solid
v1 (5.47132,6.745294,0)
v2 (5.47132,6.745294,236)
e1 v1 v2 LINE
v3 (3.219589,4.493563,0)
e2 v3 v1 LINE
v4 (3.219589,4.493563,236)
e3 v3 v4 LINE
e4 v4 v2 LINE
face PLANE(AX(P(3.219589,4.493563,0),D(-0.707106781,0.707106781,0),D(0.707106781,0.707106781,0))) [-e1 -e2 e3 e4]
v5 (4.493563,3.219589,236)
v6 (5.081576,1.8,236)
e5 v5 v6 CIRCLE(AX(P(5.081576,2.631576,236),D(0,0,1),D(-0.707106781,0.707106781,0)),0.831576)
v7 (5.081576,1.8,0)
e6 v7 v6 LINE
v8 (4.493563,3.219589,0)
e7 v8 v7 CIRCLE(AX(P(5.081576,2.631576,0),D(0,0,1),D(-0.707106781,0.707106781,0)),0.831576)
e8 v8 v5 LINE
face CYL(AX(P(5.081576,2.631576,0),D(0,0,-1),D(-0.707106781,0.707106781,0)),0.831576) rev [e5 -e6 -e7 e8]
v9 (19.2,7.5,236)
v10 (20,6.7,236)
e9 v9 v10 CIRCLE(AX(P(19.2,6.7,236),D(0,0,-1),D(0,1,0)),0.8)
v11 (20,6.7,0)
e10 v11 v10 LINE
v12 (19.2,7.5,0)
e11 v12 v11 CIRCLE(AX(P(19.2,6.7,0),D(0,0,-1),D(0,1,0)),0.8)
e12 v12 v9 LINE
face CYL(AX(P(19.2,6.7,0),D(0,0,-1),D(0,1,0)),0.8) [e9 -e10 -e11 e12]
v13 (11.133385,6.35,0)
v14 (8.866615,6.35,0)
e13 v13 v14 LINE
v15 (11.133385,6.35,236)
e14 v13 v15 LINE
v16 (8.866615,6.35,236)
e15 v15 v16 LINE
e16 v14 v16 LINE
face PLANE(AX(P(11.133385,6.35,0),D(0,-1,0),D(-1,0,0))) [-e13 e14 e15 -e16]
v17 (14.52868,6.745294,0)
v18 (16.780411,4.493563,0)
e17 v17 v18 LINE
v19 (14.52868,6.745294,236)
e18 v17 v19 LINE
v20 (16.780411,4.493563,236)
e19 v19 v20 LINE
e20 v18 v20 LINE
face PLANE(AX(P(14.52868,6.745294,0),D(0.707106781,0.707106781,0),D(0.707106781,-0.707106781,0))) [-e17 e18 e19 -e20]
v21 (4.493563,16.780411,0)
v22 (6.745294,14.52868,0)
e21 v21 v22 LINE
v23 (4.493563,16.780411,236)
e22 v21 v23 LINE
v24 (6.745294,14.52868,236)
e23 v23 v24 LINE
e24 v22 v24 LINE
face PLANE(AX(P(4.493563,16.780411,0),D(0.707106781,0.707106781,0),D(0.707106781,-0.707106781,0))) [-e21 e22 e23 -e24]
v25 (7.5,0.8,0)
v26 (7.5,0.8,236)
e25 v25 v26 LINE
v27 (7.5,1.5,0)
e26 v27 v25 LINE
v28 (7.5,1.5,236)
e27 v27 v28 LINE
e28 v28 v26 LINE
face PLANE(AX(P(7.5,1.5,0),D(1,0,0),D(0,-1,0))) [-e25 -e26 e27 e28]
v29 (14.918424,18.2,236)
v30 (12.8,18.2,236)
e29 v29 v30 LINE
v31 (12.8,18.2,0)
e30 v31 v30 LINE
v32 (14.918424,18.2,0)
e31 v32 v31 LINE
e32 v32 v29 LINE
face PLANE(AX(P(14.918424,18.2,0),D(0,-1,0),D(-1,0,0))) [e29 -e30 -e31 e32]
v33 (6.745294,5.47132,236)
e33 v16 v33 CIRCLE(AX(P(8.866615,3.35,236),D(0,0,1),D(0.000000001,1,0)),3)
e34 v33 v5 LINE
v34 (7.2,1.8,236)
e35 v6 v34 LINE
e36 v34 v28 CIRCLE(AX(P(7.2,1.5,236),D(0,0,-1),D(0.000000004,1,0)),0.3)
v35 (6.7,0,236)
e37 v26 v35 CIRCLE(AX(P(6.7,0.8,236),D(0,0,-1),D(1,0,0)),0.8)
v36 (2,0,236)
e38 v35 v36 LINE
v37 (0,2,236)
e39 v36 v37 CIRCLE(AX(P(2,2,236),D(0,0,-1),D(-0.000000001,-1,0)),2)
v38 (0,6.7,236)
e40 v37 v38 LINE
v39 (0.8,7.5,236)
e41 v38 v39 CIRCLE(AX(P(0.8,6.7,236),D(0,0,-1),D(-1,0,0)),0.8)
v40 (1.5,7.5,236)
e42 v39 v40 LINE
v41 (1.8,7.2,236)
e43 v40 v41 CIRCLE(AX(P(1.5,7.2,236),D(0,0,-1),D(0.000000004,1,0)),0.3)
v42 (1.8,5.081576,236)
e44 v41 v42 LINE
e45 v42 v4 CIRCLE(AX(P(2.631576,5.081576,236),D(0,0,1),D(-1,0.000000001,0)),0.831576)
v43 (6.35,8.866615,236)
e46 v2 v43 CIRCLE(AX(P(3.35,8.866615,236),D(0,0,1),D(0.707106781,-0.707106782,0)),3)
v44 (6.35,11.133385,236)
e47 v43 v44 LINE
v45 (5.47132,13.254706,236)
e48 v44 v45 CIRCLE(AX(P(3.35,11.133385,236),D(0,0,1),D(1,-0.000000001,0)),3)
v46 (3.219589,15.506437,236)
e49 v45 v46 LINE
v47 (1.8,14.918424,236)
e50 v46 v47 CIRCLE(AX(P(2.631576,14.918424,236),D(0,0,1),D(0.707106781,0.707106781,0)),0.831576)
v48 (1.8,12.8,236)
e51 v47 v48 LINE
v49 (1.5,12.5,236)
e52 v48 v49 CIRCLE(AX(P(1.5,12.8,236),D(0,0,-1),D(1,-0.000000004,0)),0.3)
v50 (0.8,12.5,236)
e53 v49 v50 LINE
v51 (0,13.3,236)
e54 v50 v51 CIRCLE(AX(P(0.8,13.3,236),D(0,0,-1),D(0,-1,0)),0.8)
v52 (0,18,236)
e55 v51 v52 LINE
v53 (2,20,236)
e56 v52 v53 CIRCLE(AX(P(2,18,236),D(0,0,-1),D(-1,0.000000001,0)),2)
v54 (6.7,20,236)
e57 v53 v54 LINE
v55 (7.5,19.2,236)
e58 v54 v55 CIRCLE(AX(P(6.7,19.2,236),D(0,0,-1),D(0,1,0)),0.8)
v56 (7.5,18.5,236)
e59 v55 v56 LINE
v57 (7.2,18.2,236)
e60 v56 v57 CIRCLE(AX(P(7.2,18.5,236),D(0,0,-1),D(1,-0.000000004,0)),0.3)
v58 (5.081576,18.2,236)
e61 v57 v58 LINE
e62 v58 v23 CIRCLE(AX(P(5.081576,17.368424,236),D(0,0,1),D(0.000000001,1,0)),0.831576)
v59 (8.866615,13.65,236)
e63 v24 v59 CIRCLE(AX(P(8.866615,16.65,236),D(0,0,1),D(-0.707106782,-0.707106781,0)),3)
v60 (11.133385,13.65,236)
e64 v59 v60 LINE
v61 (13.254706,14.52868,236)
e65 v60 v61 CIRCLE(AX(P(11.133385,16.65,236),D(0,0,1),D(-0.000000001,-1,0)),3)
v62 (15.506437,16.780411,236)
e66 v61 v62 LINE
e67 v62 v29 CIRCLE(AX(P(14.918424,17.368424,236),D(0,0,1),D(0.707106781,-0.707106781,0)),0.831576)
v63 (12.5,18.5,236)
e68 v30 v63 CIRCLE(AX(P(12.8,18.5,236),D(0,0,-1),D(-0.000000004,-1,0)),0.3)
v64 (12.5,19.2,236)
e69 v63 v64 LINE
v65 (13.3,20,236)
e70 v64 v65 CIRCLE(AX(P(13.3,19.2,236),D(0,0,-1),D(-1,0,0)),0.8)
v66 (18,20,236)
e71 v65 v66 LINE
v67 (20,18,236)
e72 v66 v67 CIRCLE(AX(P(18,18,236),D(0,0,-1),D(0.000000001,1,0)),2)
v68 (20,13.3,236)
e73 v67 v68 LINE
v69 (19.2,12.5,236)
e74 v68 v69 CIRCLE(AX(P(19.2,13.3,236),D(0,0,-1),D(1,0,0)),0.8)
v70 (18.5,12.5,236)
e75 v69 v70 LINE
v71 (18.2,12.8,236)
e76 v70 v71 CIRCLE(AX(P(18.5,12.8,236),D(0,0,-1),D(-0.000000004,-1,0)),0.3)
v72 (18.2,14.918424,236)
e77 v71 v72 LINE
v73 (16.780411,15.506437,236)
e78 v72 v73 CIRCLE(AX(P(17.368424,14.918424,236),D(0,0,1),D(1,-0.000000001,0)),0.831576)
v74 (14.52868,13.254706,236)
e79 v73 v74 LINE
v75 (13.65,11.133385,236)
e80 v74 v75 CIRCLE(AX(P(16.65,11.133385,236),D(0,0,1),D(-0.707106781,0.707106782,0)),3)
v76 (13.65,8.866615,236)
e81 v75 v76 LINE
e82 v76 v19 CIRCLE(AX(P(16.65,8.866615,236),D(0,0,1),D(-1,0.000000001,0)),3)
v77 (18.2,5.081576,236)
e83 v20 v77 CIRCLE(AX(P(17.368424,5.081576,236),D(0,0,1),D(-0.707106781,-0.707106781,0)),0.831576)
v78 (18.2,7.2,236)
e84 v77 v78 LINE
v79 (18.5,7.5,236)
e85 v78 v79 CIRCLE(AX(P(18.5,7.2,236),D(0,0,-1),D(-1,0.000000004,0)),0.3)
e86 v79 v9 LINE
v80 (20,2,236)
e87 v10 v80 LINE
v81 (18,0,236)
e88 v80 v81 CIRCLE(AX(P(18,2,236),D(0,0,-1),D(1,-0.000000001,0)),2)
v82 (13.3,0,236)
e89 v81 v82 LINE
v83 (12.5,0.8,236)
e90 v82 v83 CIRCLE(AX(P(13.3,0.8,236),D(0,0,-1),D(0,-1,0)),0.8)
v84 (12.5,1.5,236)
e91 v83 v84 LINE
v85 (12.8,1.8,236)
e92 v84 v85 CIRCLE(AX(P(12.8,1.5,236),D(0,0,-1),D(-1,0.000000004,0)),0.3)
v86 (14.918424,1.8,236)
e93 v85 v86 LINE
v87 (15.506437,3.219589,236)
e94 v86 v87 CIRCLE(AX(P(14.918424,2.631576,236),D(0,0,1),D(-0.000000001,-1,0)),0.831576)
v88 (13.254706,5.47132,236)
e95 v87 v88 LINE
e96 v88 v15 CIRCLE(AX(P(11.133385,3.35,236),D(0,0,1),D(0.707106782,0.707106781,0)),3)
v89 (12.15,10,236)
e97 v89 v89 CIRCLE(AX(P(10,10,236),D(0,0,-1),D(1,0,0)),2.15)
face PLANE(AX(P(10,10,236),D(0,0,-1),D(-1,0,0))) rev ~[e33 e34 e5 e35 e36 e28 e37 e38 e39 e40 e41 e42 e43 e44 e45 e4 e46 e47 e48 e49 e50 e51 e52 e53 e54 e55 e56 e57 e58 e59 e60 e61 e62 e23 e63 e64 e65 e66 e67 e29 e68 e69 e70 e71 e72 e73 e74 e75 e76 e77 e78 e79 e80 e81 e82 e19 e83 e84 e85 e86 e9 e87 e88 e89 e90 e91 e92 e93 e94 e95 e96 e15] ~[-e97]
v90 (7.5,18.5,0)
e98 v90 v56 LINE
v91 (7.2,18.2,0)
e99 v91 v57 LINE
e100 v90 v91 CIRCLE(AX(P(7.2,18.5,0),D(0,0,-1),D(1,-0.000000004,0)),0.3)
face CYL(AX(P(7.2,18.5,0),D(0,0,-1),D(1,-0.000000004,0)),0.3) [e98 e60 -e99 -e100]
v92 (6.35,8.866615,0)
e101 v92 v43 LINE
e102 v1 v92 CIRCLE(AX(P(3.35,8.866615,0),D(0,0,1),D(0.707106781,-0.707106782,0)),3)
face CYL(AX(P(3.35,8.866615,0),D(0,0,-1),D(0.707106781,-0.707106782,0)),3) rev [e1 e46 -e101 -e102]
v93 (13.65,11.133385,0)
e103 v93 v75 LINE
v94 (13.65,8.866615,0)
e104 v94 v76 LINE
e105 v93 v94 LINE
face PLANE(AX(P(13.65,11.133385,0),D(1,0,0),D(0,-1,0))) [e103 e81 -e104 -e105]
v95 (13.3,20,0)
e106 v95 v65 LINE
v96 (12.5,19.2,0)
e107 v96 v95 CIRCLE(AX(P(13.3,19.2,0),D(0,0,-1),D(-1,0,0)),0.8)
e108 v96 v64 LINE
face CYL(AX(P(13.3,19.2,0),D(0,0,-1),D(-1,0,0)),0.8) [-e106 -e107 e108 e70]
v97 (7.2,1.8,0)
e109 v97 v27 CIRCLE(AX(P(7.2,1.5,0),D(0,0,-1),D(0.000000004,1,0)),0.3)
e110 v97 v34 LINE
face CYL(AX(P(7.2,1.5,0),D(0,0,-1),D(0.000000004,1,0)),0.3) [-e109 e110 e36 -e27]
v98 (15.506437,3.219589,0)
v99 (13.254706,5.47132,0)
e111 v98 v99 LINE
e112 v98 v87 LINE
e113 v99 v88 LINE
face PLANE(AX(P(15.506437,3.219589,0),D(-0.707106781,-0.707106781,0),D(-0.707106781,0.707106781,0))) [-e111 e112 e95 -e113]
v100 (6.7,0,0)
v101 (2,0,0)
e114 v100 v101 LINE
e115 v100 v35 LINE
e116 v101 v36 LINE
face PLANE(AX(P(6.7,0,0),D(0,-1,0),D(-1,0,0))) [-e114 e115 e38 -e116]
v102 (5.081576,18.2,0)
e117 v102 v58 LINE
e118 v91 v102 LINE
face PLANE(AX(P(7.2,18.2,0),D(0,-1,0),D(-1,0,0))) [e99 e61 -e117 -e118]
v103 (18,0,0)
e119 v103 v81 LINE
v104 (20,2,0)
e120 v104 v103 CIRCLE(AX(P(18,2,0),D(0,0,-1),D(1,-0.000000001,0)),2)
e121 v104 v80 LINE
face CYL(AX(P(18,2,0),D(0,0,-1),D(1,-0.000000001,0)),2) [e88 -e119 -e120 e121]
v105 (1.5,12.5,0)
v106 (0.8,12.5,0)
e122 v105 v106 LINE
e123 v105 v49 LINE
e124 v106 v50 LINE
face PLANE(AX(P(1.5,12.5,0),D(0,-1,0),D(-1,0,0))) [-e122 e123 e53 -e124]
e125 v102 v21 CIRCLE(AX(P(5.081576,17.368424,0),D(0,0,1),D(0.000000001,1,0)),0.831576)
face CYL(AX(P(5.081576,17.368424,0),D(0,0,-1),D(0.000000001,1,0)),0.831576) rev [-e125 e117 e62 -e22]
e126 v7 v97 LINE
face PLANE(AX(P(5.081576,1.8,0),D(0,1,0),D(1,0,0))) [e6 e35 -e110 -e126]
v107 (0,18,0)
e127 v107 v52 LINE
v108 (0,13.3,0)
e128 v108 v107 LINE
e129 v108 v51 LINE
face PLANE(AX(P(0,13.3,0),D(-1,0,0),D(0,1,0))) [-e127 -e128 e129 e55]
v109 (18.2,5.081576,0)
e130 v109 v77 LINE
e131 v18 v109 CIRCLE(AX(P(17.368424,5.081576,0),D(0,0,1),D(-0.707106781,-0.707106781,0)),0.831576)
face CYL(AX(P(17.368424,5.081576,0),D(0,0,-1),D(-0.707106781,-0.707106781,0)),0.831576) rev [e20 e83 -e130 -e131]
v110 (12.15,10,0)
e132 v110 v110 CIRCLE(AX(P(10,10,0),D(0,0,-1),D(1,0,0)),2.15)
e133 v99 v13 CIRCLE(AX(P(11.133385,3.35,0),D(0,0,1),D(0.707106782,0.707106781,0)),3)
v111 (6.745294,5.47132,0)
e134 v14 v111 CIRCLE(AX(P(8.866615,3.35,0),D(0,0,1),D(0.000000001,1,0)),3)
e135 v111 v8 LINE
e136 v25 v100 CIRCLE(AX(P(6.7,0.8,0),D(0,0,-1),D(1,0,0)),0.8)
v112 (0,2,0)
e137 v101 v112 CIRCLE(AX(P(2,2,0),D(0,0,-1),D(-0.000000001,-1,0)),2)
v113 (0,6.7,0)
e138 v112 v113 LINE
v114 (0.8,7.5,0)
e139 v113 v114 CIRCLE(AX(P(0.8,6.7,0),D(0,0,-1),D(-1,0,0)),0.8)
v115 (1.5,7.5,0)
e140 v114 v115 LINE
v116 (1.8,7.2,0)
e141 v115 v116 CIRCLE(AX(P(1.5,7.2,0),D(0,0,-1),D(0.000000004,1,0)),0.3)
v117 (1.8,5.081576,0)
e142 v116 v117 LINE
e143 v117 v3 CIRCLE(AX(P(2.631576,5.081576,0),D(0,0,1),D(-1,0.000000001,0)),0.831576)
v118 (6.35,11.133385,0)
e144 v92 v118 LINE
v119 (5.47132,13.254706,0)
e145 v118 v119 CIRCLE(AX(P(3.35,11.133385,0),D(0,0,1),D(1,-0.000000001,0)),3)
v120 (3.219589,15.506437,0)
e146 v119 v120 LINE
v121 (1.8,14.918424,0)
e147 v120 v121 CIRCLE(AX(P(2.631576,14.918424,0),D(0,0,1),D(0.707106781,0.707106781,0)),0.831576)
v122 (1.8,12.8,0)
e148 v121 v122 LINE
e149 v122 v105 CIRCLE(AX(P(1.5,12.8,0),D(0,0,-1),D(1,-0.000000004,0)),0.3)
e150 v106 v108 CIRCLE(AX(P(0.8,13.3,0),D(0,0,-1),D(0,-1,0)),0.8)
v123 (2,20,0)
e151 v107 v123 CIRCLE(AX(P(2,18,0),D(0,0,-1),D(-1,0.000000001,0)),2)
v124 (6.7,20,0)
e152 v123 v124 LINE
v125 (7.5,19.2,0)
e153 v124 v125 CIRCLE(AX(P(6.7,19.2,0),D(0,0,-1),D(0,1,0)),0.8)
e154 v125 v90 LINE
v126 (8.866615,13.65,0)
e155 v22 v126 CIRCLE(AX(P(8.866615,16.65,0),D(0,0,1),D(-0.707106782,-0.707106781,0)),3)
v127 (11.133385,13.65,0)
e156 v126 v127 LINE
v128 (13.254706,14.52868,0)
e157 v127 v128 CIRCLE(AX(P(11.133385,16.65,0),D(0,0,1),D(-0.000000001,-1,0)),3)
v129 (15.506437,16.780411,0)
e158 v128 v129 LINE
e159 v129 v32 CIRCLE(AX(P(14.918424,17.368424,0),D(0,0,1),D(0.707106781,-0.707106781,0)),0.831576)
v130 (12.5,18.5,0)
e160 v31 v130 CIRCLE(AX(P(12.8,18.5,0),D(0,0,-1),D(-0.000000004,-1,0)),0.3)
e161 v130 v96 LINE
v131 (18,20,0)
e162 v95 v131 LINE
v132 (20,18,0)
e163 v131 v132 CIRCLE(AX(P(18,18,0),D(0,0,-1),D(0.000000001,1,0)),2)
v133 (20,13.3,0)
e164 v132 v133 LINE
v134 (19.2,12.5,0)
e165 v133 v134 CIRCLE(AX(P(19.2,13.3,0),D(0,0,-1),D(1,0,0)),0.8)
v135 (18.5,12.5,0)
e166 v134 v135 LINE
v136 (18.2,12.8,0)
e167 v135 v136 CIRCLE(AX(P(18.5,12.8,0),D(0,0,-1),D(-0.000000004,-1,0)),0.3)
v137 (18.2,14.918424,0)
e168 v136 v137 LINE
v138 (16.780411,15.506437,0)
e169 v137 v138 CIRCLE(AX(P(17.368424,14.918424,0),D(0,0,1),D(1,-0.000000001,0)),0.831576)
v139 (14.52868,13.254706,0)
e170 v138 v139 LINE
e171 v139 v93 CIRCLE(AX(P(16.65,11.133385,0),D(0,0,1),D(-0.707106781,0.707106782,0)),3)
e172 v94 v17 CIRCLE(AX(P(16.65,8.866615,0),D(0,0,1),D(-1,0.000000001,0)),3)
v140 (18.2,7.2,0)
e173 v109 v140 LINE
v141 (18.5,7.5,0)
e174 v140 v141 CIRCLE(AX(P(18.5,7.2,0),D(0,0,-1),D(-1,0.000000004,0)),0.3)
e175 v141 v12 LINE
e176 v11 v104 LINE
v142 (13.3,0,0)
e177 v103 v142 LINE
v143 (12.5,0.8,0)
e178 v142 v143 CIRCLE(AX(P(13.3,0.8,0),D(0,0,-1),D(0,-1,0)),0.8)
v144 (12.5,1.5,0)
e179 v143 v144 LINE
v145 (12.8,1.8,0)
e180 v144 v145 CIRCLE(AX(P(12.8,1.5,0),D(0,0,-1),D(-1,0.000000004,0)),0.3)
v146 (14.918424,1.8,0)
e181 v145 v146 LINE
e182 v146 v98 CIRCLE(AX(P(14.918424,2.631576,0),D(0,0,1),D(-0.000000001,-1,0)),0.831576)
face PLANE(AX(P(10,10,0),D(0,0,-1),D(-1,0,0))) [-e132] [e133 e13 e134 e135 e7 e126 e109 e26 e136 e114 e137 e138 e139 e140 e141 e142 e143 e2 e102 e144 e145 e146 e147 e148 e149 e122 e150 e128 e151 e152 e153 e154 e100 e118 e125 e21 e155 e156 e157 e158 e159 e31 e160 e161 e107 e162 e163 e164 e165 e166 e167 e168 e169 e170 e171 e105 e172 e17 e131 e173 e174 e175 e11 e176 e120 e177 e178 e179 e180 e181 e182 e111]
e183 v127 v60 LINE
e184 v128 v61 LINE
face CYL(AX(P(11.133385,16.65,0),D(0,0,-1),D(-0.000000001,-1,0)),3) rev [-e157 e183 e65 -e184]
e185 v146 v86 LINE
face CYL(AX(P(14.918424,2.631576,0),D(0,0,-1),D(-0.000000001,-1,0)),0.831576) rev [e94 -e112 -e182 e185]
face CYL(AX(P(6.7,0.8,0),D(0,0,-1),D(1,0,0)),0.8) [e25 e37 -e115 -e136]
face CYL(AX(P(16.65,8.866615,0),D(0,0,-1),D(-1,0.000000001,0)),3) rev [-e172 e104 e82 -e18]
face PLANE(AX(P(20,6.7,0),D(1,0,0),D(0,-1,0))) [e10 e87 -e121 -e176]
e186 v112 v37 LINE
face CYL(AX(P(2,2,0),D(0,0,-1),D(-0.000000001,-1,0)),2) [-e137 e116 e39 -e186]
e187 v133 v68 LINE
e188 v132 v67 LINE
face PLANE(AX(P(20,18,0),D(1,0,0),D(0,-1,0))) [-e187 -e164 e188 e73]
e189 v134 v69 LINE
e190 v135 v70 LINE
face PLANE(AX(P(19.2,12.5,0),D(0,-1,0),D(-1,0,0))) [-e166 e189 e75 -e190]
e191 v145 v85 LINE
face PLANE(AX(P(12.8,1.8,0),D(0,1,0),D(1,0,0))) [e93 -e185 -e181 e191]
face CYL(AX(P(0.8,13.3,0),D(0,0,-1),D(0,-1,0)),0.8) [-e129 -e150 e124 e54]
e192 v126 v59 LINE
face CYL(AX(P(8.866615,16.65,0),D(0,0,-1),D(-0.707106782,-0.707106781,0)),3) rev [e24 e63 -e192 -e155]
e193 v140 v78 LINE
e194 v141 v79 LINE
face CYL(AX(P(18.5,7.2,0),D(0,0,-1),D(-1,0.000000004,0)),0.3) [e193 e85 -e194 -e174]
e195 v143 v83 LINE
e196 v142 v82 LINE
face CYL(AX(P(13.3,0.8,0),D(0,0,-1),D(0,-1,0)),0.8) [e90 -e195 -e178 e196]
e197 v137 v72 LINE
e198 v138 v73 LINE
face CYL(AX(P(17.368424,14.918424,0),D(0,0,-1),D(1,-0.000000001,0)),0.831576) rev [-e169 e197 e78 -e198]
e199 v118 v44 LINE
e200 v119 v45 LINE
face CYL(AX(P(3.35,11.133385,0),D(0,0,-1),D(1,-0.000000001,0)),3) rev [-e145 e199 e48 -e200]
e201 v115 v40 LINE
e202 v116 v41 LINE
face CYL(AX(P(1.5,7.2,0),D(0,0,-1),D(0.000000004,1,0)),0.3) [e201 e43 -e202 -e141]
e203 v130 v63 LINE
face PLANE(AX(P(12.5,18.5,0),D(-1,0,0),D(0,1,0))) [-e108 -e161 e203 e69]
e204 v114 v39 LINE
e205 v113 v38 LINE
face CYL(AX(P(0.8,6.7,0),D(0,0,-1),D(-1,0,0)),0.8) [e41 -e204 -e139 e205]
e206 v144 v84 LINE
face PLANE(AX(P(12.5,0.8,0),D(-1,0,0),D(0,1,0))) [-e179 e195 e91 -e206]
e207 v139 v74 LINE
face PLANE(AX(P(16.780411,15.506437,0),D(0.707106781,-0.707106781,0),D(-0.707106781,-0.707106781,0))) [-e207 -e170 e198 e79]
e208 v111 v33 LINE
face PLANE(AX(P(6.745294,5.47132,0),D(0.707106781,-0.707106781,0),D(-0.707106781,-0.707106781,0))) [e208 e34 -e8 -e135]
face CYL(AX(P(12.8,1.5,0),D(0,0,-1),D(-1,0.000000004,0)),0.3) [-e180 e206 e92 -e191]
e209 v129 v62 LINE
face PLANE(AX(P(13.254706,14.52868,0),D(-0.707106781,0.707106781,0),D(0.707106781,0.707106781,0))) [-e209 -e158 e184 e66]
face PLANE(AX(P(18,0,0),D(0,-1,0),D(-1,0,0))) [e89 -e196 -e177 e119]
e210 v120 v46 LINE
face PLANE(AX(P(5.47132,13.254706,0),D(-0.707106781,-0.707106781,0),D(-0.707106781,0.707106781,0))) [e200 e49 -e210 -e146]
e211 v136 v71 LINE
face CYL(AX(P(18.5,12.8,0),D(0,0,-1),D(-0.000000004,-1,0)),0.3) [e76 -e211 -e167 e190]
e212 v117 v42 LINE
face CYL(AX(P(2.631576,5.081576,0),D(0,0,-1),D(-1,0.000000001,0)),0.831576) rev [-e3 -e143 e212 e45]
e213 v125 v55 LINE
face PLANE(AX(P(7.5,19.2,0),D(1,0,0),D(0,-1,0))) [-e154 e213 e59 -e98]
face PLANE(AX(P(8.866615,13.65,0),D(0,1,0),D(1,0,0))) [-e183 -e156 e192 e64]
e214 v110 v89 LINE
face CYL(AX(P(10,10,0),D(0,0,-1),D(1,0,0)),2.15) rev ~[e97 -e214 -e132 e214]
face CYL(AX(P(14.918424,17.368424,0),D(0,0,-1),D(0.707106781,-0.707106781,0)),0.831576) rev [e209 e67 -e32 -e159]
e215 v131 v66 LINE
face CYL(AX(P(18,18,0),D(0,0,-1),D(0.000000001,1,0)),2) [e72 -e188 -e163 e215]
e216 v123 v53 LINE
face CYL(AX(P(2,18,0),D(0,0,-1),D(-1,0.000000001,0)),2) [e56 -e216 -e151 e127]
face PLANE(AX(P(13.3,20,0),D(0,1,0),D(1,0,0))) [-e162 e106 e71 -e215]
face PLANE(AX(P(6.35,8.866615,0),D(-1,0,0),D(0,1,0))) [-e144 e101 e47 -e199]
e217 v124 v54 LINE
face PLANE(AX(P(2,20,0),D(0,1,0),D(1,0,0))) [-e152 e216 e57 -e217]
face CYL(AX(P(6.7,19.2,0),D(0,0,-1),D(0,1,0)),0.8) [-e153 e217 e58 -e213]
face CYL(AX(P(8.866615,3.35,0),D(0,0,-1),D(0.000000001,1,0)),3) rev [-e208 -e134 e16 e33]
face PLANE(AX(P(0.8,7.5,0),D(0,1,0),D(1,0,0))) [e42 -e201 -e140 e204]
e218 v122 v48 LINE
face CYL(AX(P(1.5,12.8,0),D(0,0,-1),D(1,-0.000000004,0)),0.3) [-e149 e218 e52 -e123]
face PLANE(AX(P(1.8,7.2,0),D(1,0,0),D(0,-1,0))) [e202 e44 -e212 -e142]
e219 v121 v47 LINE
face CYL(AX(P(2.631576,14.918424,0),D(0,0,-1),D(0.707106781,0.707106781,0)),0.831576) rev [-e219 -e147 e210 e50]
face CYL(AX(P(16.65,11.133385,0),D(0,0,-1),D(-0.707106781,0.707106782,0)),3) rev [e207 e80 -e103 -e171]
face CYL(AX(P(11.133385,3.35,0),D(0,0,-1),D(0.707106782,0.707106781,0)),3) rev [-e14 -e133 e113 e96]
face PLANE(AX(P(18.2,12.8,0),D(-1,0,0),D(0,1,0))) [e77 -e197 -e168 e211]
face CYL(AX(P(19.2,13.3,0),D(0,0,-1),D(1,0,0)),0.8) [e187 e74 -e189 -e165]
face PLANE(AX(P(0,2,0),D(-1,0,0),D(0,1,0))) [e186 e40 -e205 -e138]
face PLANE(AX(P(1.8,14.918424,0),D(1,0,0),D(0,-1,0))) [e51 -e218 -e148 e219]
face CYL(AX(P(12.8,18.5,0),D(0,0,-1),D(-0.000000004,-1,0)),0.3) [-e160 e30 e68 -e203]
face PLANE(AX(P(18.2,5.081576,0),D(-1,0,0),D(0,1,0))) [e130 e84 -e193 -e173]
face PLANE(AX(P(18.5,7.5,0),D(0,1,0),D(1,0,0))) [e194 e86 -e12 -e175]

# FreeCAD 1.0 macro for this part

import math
import FreeCAD as App
import Part
import Sketcher
Q = App.Units.Quantity

doc = App.newDocument("Part")
body = doc.addObject("PartDesign::Body", "Body")

# Sketch on XY plane
sketch1 = doc.addObject("Sketcher::SketchObject", "Sketch")
body.addObject(sketch1)
sketch1.AttachmentSupport = (doc.XY_Plane, [""])
sketch1.MapMode = "FlatFace"
sketch1.addGeometry(Part.LineSegment(App.Vector(18, 0, 0), App.Vector(13.3, 0, 0)), False)
sketch1.addGeometry(Part.ArcOfCircle(Part.Circle(App.Vector(13.3, 0.8, 0), App.Vector(0, 0, 1), 0.8), math.radians(180), math.radians(270)), False)
sketch1.addGeometry(Part.LineSegment(App.Vector(12.5, 0.8, 0), App.Vector(12.5, 1.5, 0)), False)
sketch1.addGeometry(Part.ArcOfCircle(Part.Circle(App.Vector(12.8, 1.5, 0), App.Vector(0, 0, 1), 0.3), math.radians(90), math.radians(180)), False)
sketch1.addGeometry(Part.LineSegment(App.Vector(12.8, 1.8, 0), App.Vector(14.918424, 1.8, 0)), False)
sketch1.addGeometry(Part.ArcOfCircle(Part.Circle(App.Vector(14.918424, 2.631576, 0), App.Vector(0, 0, 1), 0.831576), math.radians(-90), math.radians(45)), False)
sketch1.addGeometry(Part.LineSegment(App.Vector(15.506437, 3.219589, 0), App.Vector(13.254706, 5.47132, 0)), False)
sketch1.addGeometry(Part.ArcOfCircle(Part.Circle(App.Vector(11.133385, 3.35, 0), App.Vector(0, 0, 1), 3), math.radians(45), math.radians(90)), False)
sketch1.addGeometry(Part.LineSegment(App.Vector(11.133385, 6.35, 0), App.Vector(8.866615, 6.35, 0)), False)
sketch1.addGeometry(Part.ArcOfCircle(Part.Circle(App.Vector(8.866615, 3.35, 0), App.Vector(0, 0, 1), 3), math.radians(90), math.radians(135)), False)
sketch1.addGeometry(Part.LineSegment(App.Vector(6.745294, 5.47132, 0), App.Vector(4.493563, 3.219589, 0)), False)
sketch1.addGeometry(Part.ArcOfCircle(Part.Circle(App.Vector(5.081576, 2.631576, 0), App.Vector(0, 0, 1), 0.831576), math.radians(135), math.radians(270)), False)
sketch1.addGeometry(Part.LineSegment(App.Vector(5.081576, 1.8, 0), App.Vector(7.2, 1.8, 0)), False)
sketch1.addGeometry(Part.ArcOfCircle(Part.Circle(App.Vector(7.2, 1.5, 0), App.Vector(0, 0, 1), 0.3), math.radians(0), math.radians(90)), False)
sketch1.addGeometry(Part.LineSegment(App.Vector(7.5, 1.5, 0), App.Vector(7.5, 0.8, 0)), False)
sketch1.addGeometry(Part.ArcOfCircle(Part.Circle(App.Vector(6.7, 0.8, 0), App.Vector(0, 0, 1), 0.8), math.radians(-90), math.radians(0)), False)
sketch1.addGeometry(Part.LineSegment(App.Vector(6.7, 0, 0), App.Vector(2, 0, 0)), False)
sketch1.addGeometry(Part.ArcOfCircle(Part.Circle(App.Vector(2, 2, 0), App.Vector(0, 0, 1), 2), math.radians(-180), math.radians(-90)), False)
sketch1.addGeometry(Part.LineSegment(App.Vector(0, 2, 0), App.Vector(0, 6.7, 0)), False)
sketch1.addGeometry(Part.ArcOfCircle(Part.Circle(App.Vector(0.8, 6.7, 0), App.Vector(0, 0, 1), 0.8), math.radians(90), math.radians(180)), False)
sketch1.addGeometry(Part.LineSegment(App.Vector(0.8, 7.5, 0), App.Vector(1.5, 7.5, 0)), False)
sketch1.addGeometry(Part.ArcOfCircle(Part.Circle(App.Vector(1.5, 7.2, 0), App.Vector(0, 0, 1), 0.3), math.radians(0), math.radians(90)), False)
sketch1.addGeometry(Part.LineSegment(App.Vector(1.8, 7.2, 0), App.Vector(1.8, 5.081576, 0)), False)
sketch1.addGeometry(Part.ArcOfCircle(Part.Circle(App.Vector(2.631576, 5.081576, 0), App.Vector(0, 0, 1), 0.831576), math.radians(180), math.radians(315)), False)
sketch1.addGeometry(Part.LineSegment(App.Vector(3.219589, 4.493563, 0), App.Vector(5.47132, 6.745294, 0)), False)
sketch1.addGeometry(Part.ArcOfCircle(Part.Circle(App.Vector(3.35, 8.866615, 0), App.Vector(0, 0, 1), 3), math.radians(-45), math.radians(0)), False)
sketch1.addGeometry(Part.LineSegment(App.Vector(6.35, 8.866615, 0), App.Vector(6.35, 11.133385, 0)), False)
sketch1.addGeometry(Part.ArcOfCircle(Part.Circle(App.Vector(3.35, 11.133385, 0), App.Vector(0, 0, 1), 3), math.radians(0), math.radians(45)), False)
sketch1.addGeometry(Part.LineSegment(App.Vector(5.47132, 13.254706, 0), App.Vector(3.219589, 15.506437, 0)), False)
sketch1.addGeometry(Part.ArcOfCircle(Part.Circle(App.Vector(2.631576, 14.918424, 0), App.Vector(0, 0, 1), 0.831576), math.radians(45), math.radians(180)), False)
sketch1.addGeometry(Part.LineSegment(App.Vector(1.8, 14.918424, 0), App.Vector(1.8, 12.8, 0)), False)
sketch1.addGeometry(Part.ArcOfCircle(Part.Circle(App.Vector(1.5, 12.8, 0), App.Vector(0, 0, 1), 0.3), math.radians(-90), math.radians(0)), False)
sketch1.addGeometry(Part.LineSegment(App.Vector(1.5, 12.5, 0), App.Vector(0.8, 12.5, 0)), False)
sketch1.addGeometry(Part.ArcOfCircle(Part.Circle(App.Vector(0.8, 13.3, 0), App.Vector(0, 0, 1), 0.8), math.radians(180), math.radians(270)), False)
sketch1.addGeometry(Part.LineSegment(App.Vector(0, 13.3, 0), App.Vector(0, 18, 0)), False)
sketch1.addGeometry(Part.ArcOfCircle(Part.Circle(App.Vector(2, 18, 0), App.Vector(0, 0, 1), 2), math.radians(90), math.radians(180)), False)
sketch1.addGeometry(Part.LineSegment(App.Vector(2, 20, 0), App.Vector(6.7, 20, 0)), False)
sketch1.addGeometry(Part.ArcOfCircle(Part.Circle(App.Vector(6.7, 19.2, 0), App.Vector(0, 0, 1), 0.8), math.radians(0), math.radians(90)), False)
sketch1.addGeometry(Part.LineSegment(App.Vector(7.5, 19.2, 0), App.Vector(7.5, 18.5, 0)), False)
sketch1.addGeometry(Part.ArcOfCircle(Part.Circle(App.Vector(7.2, 18.5, 0), App.Vector(0, 0, 1), 0.3), math.radians(-90), math.radians(0)), False)
sketch1.addGeometry(Part.LineSegment(App.Vector(7.2, 18.2, 0), App.Vector(5.081576, 18.2, 0)), False)
sketch1.addGeometry(Part.ArcOfCircle(Part.Circle(App.Vector(5.081576, 17.368424, 0), App.Vector(0, 0, 1), 0.831576), math.radians(90), math.radians(225)), False)
sketch1.addGeometry(Part.LineSegment(App.Vector(4.493563, 16.780411, 0), App.Vector(6.745294, 14.52868, 0)), False)
sketch1.addGeometry(Part.ArcOfCircle(Part.Circle(App.Vector(8.866615, 16.65, 0), App.Vector(0, 0, 1), 3), math.radians(-135), math.radians(-90)), False)
sketch1.addGeometry(Part.LineSegment(App.Vector(8.866615, 13.65, 0), App.Vector(11.133385, 13.65, 0)), False)
sketch1.addGeometry(Part.ArcOfCircle(Part.Circle(App.Vector(11.133385, 16.65, 0), App.Vector(0, 0, 1), 3), math.radians(-90), math.radians(-45)), False)
sketch1.addGeometry(Part.LineSegment(App.Vector(13.254706, 14.52868, 0), App.Vector(15.506437, 16.780411, 0)), False)
sketch1.addGeometry(Part.ArcOfCircle(Part.Circle(App.Vector(14.918424, 17.368424, 0), App.Vector(0, 0, 1), 0.831576), math.radians(-45), math.radians(90)), False)
sketch1.addGeometry(Part.LineSegment(App.Vector(14.918424, 18.2, 0), App.Vector(12.8, 18.2, 0)), False)
sketch1.addGeometry(Part.ArcOfCircle(Part.Circle(App.Vector(12.8, 18.5, 0), App.Vector(0, 0, 1), 0.3), math.radians(-180), math.radians(-90)), False)
sketch1.addGeometry(Part.LineSegment(App.Vector(12.5, 18.5, 0), App.Vector(12.5, 19.2, 0)), False)
sketch1.addGeometry(Part.ArcOfCircle(Part.Circle(App.Vector(13.3, 19.2, 0), App.Vector(0, 0, 1), 0.8), math.radians(90), math.radians(180)), False)
sketch1.addGeometry(Part.LineSegment(App.Vector(13.3, 20, 0), App.Vector(18, 20, 0)), False)
sketch1.addGeometry(Part.ArcOfCircle(Part.Circle(App.Vector(18, 18, 0), App.Vector(0, 0, 1), 2), math.radians(0), math.radians(90)), False)
sketch1.addGeometry(Part.LineSegment(App.Vector(20, 18, 0), App.Vector(20, 13.3, 0)), False)
sketch1.addGeometry(Part.ArcOfCircle(Part.Circle(App.Vector(19.2, 13.3, 0), App.Vector(0, 0, 1), 0.8), math.radians(-90), math.radians(0)), False)
sketch1.addGeometry(Part.LineSegment(App.Vector(19.2, 12.5, 0), App.Vector(18.5, 12.5, 0)), False)
sketch1.addGeometry(Part.ArcOfCircle(Part.Circle(App.Vector(18.5, 12.8, 0), App.Vector(0, 0, 1), 0.3), math.radians(-180), math.radians(-90)), False)
sketch1.addGeometry(Part.LineSegment(App.Vector(18.2, 12.8, 0), App.Vector(18.2, 14.918424, 0)), False)
sketch1.addGeometry(Part.ArcOfCircle(Part.Circle(App.Vector(17.368424, 14.918424, 0), App.Vector(0, 0, 1), 0.831576), math.radians(0), math.radians(135)), False)
sketch1.addGeometry(Part.LineSegment(App.Vector(16.780411, 15.506437, 0), App.Vector(14.52868, 13.254706, 0)), False)
sketch1.addGeometry(Part.ArcOfCircle(Part.Circle(App.Vector(16.65, 11.133385, 0), App.Vector(0, 0, 1), 3), math.radians(135), math.radians(180)), False)
sketch1.addGeometry(Part.LineSegment(App.Vector(13.65, 11.133385, 0), App.Vector(13.65, 8.866615, 0)), False)
sketch1.addGeometry(Part.ArcOfCircle(Part.Circle(App.Vector(16.65, 8.866615, 0), App.Vector(0, 0, 1), 3), math.radians(180), math.radians(225)), False)
sketch1.addGeometry(Part.LineSegment(App.Vector(14.52868, 6.745294, 0), App.Vector(16.780411, 4.493563, 0)), False)
sketch1.addGeometry(Part.ArcOfCircle(Part.Circle(App.Vector(17.368424, 5.081576, 0), App.Vector(0, 0, 1), 0.831576), math.radians(-135), math.radians(0)), False)
sketch1.addGeometry(Part.LineSegment(App.Vector(18.2, 5.081576, 0), App.Vector(18.2, 7.2, 0)), False)
sketch1.addGeometry(Part.ArcOfCircle(Part.Circle(App.Vector(18.5, 7.2, 0), App.Vector(0, 0, 1), 0.3), math.radians(90), math.radians(180)), False)
sketch1.addGeometry(Part.LineSegment(App.Vector(18.5, 7.5, 0), App.Vector(19.2, 7.5, 0)), False)
sketch1.addGeometry(Part.ArcOfCircle(Part.Circle(App.Vector(19.2, 6.7, 0), App.Vector(0, 0, 1), 0.8), math.radians(0), math.radians(90)), False)
sketch1.addGeometry(Part.LineSegment(App.Vector(20, 6.7, 0), App.Vector(20, 2, 0)), False)
sketch1.addGeometry(Part.ArcOfCircle(Part.Circle(App.Vector(18, 2, 0), App.Vector(0, 0, 1), 2), math.radians(-90), math.radians(0)), False)
sketch1.addGeometry(Part.Circle(App.Vector(10, 10, 0), App.Vector(0, 0, 1), 2.15), False)
sketch1.addConstraint(Sketcher.Constraint("Tangent", 0, 2, 1, 2))
sketch1.addConstraint(Sketcher.Constraint("Tangent", 1, 1, 2, 1))
sketch1.addConstraint(Sketcher.Constraint("Tangent", 2, 2, 3, 2))
sketch1.addConstraint(Sketcher.Constraint("Tangent", 3, 1, 4, 1))
sketch1.addConstraint(Sketcher.Constraint("Tangent", 4, 2, 5, 1))
sketch1.addConstraint(Sketcher.Constraint("Tangent", 5, 2, 6, 1))
sketch1.addConstraint(Sketcher.Constraint("Tangent", 6, 2, 7, 1))
sketch1.addConstraint(Sketcher.Constraint("Tangent", 7, 2, 8, 1))
sketch1.addConstraint(Sketcher.Constraint("Tangent", 8, 2, 9, 1))
sketch1.addConstraint(Sketcher.Constraint("Tangent", 9, 2, 10, 1))
sketch1.addConstraint(Sketcher.Constraint("Tangent", 10, 2, 11, 1))
sketch1.addConstraint(Sketcher.Constraint("Tangent", 11, 2, 12, 1))
sketch1.addConstraint(Sketcher.Constraint("Tangent", 12, 2, 13, 2))
sketch1.addConstraint(Sketcher.Constraint("Tangent", 13, 1, 14, 1))
sketch1.addConstraint(Sketcher.Constraint("Tangent", 14, 2, 15, 2))
sketch1.addConstraint(Sketcher.Constraint("Tangent", 15, 1, 16, 1))
sketch1.addConstraint(Sketcher.Constraint("Tangent", 16, 2, 17, 2))
sketch1.addConstraint(Sketcher.Constraint("Tangent", 17, 1, 18, 1))
sketch1.addConstraint(Sketcher.Constraint("Tangent", 18, 2, 19, 2))
sketch1.addConstraint(Sketcher.Constraint("Tangent", 19, 1, 20, 1))
sketch1.addConstraint(Sketcher.Constraint("Tangent", 20, 2, 21, 2))
sketch1.addConstraint(Sketcher.Constraint("Tangent", 21, 1, 22, 1))
sketch1.addConstraint(Sketcher.Constraint("Tangent", 22, 2, 23, 1))
sketch1.addConstraint(Sketcher.Constraint("Tangent", 23, 2, 24, 1))
sketch1.addConstraint(Sketcher.Constraint("Tangent", 24, 2, 25, 1))
sketch1.addConstraint(Sketcher.Constraint("Tangent", 25, 2, 26, 1))
sketch1.addConstraint(Sketcher.Constraint("Tangent", 26, 2, 27, 1))
sketch1.addConstraint(Sketcher.Constraint("Tangent", 27, 2, 28, 1))
sketch1.addConstraint(Sketcher.Constraint("Tangent", 28, 2, 29, 1))
sketch1.addConstraint(Sketcher.Constraint("Tangent", 29, 2, 30, 1))
sketch1.addConstraint(Sketcher.Constraint("Tangent", 30, 2, 31, 2))
sketch1.addConstraint(Sketcher.Constraint("Tangent", 31, 1, 32, 1))
sketch1.addConstraint(Sketcher.Constraint("Tangent", 32, 2, 33, 2))
sketch1.addConstraint(Sketcher.Constraint("Tangent", 33, 1, 34, 1))
sketch1.addConstraint(Sketcher.Constraint("Tangent", 34, 2, 35, 2))
sketch1.addConstraint(Sketcher.Constraint("Tangent", 35, 1, 36, 1))
sketch1.addConstraint(Sketcher.Constraint("Tangent", 36, 2, 37, 2))
sketch1.addConstraint(Sketcher.Constraint("Tangent", 37, 1, 38, 1))
sketch1.addConstraint(Sketcher.Constraint("Tangent", 38, 2, 39, 2))
sketch1.addConstraint(Sketcher.Constraint("Tangent", 39, 1, 40, 1))
sketch1.addConstraint(Sketcher.Constraint("Tangent", 40, 2, 41, 1))
sketch1.addConstraint(Sketcher.Constraint("Tangent", 41, 2, 42, 1))
sketch1.addConstraint(Sketcher.Constraint("Tangent", 42, 2, 43, 1))
sketch1.addConstraint(Sketcher.Constraint("Tangent", 43, 2, 44, 1))
sketch1.addConstraint(Sketcher.Constraint("Tangent", 44, 2, 45, 1))
sketch1.addConstraint(Sketcher.Constraint("Tangent", 45, 2, 46, 1))
sketch1.addConstraint(Sketcher.Constraint("Tangent", 46, 2, 47, 1))
sketch1.addConstraint(Sketcher.Constraint("Tangent", 47, 2, 48, 1))
sketch1.addConstraint(Sketcher.Constraint("Tangent", 48, 2, 49, 2))
sketch1.addConstraint(Sketcher.Constraint("Tangent", 49, 1, 50, 1))
sketch1.addConstraint(Sketcher.Constraint("Tangent", 50, 2, 51, 2))
sketch1.addConstraint(Sketcher.Constraint("Tangent", 51, 1, 52, 1))
sketch1.addConstraint(Sketcher.Constraint("Tangent", 52, 2, 53, 2))
sketch1.addConstraint(Sketcher.Constraint("Tangent", 53, 1, 54, 1))
sketch1.addConstraint(Sketcher.Constraint("Tangent", 54, 2, 55, 2))
sketch1.addConstraint(Sketcher.Constraint("Tangent", 55, 1, 56, 1))
sketch1.addConstraint(Sketcher.Constraint("Tangent", 56, 2, 57, 2))
sketch1.addConstraint(Sketcher.Constraint("Tangent", 57, 1, 58, 1))
sketch1.addConstraint(Sketcher.Constraint("Tangent", 58, 2, 59, 1))
sketch1.addConstraint(Sketcher.Constraint("Tangent", 59, 2, 60, 1))
sketch1.addConstraint(Sketcher.Constraint("Tangent", 60, 2, 61, 1))
sketch1.addConstraint(Sketcher.Constraint("Tangent", 61, 2, 62, 1))
sketch1.addConstraint(Sketcher.Constraint("Tangent", 62, 2, 63, 1))
sketch1.addConstraint(Sketcher.Constraint("Tangent", 63, 2, 64, 1))
sketch1.addConstraint(Sketcher.Constraint("Tangent", 64, 2, 65, 1))
sketch1.addConstraint(Sketcher.Constraint("Tangent", 65, 2, 66, 1))
sketch1.addConstraint(Sketcher.Constraint("Tangent", 66, 2, 67, 2))
sketch1.addConstraint(Sketcher.Constraint("Tangent", 67, 1, 68, 1))
sketch1.addConstraint(Sketcher.Constraint("Tangent", 68, 2, 69, 2))
sketch1.addConstraint(Sketcher.Constraint("Tangent", 69, 1, 70, 1))
sketch1.addConstraint(Sketcher.Constraint("Tangent", 70, 2, 71, 2))
sketch1.addConstraint(Sketcher.Constraint("Tangent", 71, 1, 0, 1))
sketch1.addConstraint(Sketcher.Constraint("Horizontal", 0))
sketch1.addConstraint(Sketcher.Constraint("Vertical", 2))
sketch1.addConstraint(Sketcher.Constraint("Horizontal", 4))
sketch1.addConstraint(Sketcher.Constraint("Horizontal", 8))
sketch1.addConstraint(Sketcher.Constraint("Horizontal", 12))
sketch1.addConstraint(Sketcher.Constraint("Vertical", 14))
sketch1.addConstraint(Sketcher.Constraint("Horizontal", 16))
sketch1.addConstraint(Sketcher.Constraint("Vertical", 18))
sketch1.addConstraint(Sketcher.Constraint("Horizontal", 20))
sketch1.addConstraint(Sketcher.Constraint("Vertical", 22))
sketch1.addConstraint(Sketcher.Constraint("Vertical", 26))
sketch1.addConstraint(Sketcher.Constraint("Vertical", 30))
sketch1.addConstraint(Sketcher.Constraint("Horizontal", 32))
sketch1.addConstraint(Sketcher.Constraint("Vertical", 34))
sketch1.addConstraint(Sketcher.Constraint("Horizontal", 36))
sketch1.addConstraint(Sketcher.Constraint("Vertical", 38))
sketch1.addConstraint(Sketcher.Constraint("Horizontal", 40))
sketch1.addConstraint(Sketcher.Constraint("Horizontal", 44))
sketch1.addConstraint(Sketcher.Constraint("Horizontal", 48))
sketch1.addConstraint(Sketcher.Constraint("Vertical", 50))
sketch1.addConstraint(Sketcher.Constraint("Horizontal", 52))
sketch1.addConstraint(Sketcher.Constraint("Vertical", 54))
sketch1.addConstraint(Sketcher.Constraint("Horizontal", 56))
sketch1.addConstraint(Sketcher.Constraint("Vertical", 58))
sketch1.addConstraint(Sketcher.Constraint("Vertical", 62))
sketch1.addConstraint(Sketcher.Constraint("Vertical", 66))
sketch1.addConstraint(Sketcher.Constraint("Horizontal", 68))
sketch1.addConstraint(Sketcher.Constraint("Vertical", 70))
sketch1.addConstraint(Sketcher.Constraint("Equal", 7, 9))
sketch1.addConstraint(Sketcher.Constraint("Equal", 5, 11))
sketch1.addConstraint(Sketcher.Constraint("Equal", 3, 13))
sketch1.addConstraint(Sketcher.Constraint("Equal", 1, 15))
sketch1.addConstraint(Sketcher.Constraint("Equal", 15, 19))
sketch1.addConstraint(Sketcher.Constraint("Equal", 13, 21))
sketch1.addConstraint(Sketcher.Constraint("Equal", 11, 23))
sketch1.addConstraint(Sketcher.Constraint("Equal", 9, 25))
sketch1.addConstraint(Sketcher.Constraint("Equal", 25, 27))
sketch1.addConstraint(Sketcher.Constraint("Equal", 23, 29))
sketch1.addConstraint(Sketcher.Constraint("Equal", 21, 31))
sketch1.addConstraint(Sketcher.Constraint("Equal", 19, 33))
sketch1.addConstraint(Sketcher.Constraint("Equal", 17, 35))
sketch1.addConstraint(Sketcher.Constraint("Equal", 33, 37))
sketch1.addConstraint(Sketcher.Constraint("Equal", 31, 39))
sketch1.addConstraint(Sketcher.Constraint("Equal", 29, 41))
sketch1.addConstraint(Sketcher.Constraint("Equal", 27, 43))
sketch1.addConstraint(Sketcher.Constraint("Equal", 43, 45))
sketch1.addConstraint(Sketcher.Constraint("Equal", 41, 47))
sketch1.addConstraint(Sketcher.Constraint("Equal", 39, 49))
sketch1.addConstraint(Sketcher.Constraint("Equal", 37, 51))
sketch1.addConstraint(Sketcher.Constraint("Equal", 35, 53))
sketch1.addConstraint(Sketcher.Constraint("Equal", 51, 55))
sketch1.addConstraint(Sketcher.Constraint("Equal", 49, 57))
sketch1.addConstraint(Sketcher.Constraint("Equal", 47, 59))
sketch1.addConstraint(Sketcher.Constraint("Equal", 45, 61))
sketch1.addConstraint(Sketcher.Constraint("Equal", 61, 63))
sketch1.addConstraint(Sketcher.Constraint("Equal", 59, 65))
sketch1.addConstraint(Sketcher.Constraint("Equal", 57, 67))
sketch1.addConstraint(Sketcher.Constraint("Equal", 55, 69))
sketch1.addConstraint(Sketcher.Constraint("Equal", 53, 71))
sketch1.addConstraint(Sketcher.Constraint("PointOnObject", 0, 2, -1))
sketch1.addConstraint(Sketcher.Constraint("PointOnObject", 15, 1, -1))
sketch1.addConstraint(Sketcher.Constraint("PointOnObject", 17, 1, -2))
sketch1.addConstraint(Sketcher.Constraint("PointOnObject", 33, 1, -2))
sketch1.addConstraint(Sketcher.Constraint("Perpendicular", 6, 10))
sketch1.addConstraint(Sketcher.Constraint("Parallel", 10, 24))
sketch1.addConstraint(Sketcher.Constraint("Perpendicular", 24, 28))
sketch1.addConstraint(Sketcher.Constraint("Parallel", 28, 42))
sketch1.addConstraint(Sketcher.Constraint("Perpendicular", 42, 46))
sketch1.addConstraint(Sketcher.Constraint("Parallel", 46, 60))
sketch1.addConstraint(Sketcher.Constraint("Perpendicular", 60, 64))
sketch1.addConstraint(Sketcher.Constraint("Horizontal", 5, 3, 11, 3))
sketch1.addConstraint(Sketcher.Constraint("Horizontal", 41, 3, 47, 3))
sketch1.addConstraint(Sketcher.Constraint("Horizontal", 37, 3, 51, 3))
sketch1.addConstraint(Sketcher.Constraint("Horizontal", 33, 3, 55, 3))
sketch1.addConstraint(Sketcher.Constraint("Horizontal", 29, 3, 59, 3))
sketch1.addConstraint(Sketcher.Constraint("Horizontal", 27, 3, 61, 3))
sketch1.addConstraint(Sketcher.Constraint("Horizontal", 25, 3, 63, 3))
sketch1.addConstraint(Sketcher.Constraint("Horizontal", 23, 3, 65, 3))
sketch1.addConstraint(Sketcher.Constraint("Horizontal", 21, 3, 67, 3))
sketch1.addConstraint(Sketcher.Constraint("Horizontal", 6, 2, 9, 2))
sketch1.addConstraint(Sketcher.Constraint("Vertical", 23, 3, 29, 3))
sketch1.addConstraint(Sketcher.Constraint("Vertical", 15, 3, 37, 3))
sketch1.addConstraint(Sketcher.Constraint("Vertical", 11, 3, 41, 3))
sketch1.addConstraint(Sketcher.Constraint("Vertical", 9, 3, 43, 3))
sketch1.addConstraint(Sketcher.Constraint("Vertical", 7, 3, 45, 3))
sketch1.addConstraint(Sketcher.Constraint("Vertical", 3, 3, 49, 3))
sketch1.addConstraint(Sketcher.Constraint("Vertical", 55, 3, 69, 3))
sketch1.addConstraint(Sketcher.Constraint("Equal", 4, 12))
sketch1.addConstraint(Sketcher.Constraint("Equal", 0, 16))
sketch1.addConstraint(Sketcher.Constraint("Equal", 32, 56))
sketch1.addConstraint(Sketcher.Constraint("Equal", 68, 2))
sketch1.addConstraint(Sketcher.Constraint("Equal", 52, 18))
sketch1.addConstraint(Sketcher.Constraint("Equal", 48, 22))
sketch1.addConstraint(Sketcher.Constraint("Equal", 44, 26))
sketch1.addConstraint(Sketcher.Constraint("Equal", 22, 30))
sketch1.addConstraint(Sketcher.Constraint("Equal", 18, 34))
sketch1.addConstraint(Sketcher.Constraint("Equal", 14, 38))
sketch1.addConstraint(Sketcher.Constraint("Equal", 10, 24))
sketch1.addConstraint(Sketcher.Constraint("Radius", 7, Q("3 mm")))
sketch1.addConstraint(Sketcher.Constraint("Radius", 17, Q("2 mm")))
sketch1.addConstraint(Sketcher.Constraint("Diameter", 72, Q("4.3 mm")))
sketch1.addConstraint(Sketcher.Constraint("Radius", 1, Q("0.8 mm")))
sketch1.addConstraint(Sketcher.Constraint("Radius", 3, Q("0.3 mm")))
sketch1.addConstraint(Sketcher.Constraint("DistanceX", 0, 2, 0, 1, Q("4.7 mm")))
sketch1.addConstraint(Sketcher.Constraint("DistanceX", 20, 1, 20, 2, Q("0.7 mm")))
sketch1.addConstraint(Sketcher.Constraint("DistanceY", -1, 1, 35, 3, Q("18 mm")))
sketch1.addConstraint(Sketcher.Constraint("DistanceX", -1, 1, 72, 3, Q("10 mm")))
sketch1.addConstraint(Sketcher.Constraint("DistanceY", -1, 1, 72, 3, Q("10 mm")))
sketch1.addConstraint(Sketcher.Constraint("DistanceY", -1, 1, 7, 3, Q("3.35 mm")))
sketch1.addConstraint(Sketcher.Constraint("Radius", 5, Q("0.831576 mm")))
sketch1.addConstraint(Sketcher.Constraint("DistanceX", 8, 2, 8, 1, Q("2.266771 mm")))
pad1 = doc.addObject("PartDesign::Pad", "Pad")
body.addObject(pad1)
pad1.Profile = sketch1
pad1.Length = 236

doc.recompute()
